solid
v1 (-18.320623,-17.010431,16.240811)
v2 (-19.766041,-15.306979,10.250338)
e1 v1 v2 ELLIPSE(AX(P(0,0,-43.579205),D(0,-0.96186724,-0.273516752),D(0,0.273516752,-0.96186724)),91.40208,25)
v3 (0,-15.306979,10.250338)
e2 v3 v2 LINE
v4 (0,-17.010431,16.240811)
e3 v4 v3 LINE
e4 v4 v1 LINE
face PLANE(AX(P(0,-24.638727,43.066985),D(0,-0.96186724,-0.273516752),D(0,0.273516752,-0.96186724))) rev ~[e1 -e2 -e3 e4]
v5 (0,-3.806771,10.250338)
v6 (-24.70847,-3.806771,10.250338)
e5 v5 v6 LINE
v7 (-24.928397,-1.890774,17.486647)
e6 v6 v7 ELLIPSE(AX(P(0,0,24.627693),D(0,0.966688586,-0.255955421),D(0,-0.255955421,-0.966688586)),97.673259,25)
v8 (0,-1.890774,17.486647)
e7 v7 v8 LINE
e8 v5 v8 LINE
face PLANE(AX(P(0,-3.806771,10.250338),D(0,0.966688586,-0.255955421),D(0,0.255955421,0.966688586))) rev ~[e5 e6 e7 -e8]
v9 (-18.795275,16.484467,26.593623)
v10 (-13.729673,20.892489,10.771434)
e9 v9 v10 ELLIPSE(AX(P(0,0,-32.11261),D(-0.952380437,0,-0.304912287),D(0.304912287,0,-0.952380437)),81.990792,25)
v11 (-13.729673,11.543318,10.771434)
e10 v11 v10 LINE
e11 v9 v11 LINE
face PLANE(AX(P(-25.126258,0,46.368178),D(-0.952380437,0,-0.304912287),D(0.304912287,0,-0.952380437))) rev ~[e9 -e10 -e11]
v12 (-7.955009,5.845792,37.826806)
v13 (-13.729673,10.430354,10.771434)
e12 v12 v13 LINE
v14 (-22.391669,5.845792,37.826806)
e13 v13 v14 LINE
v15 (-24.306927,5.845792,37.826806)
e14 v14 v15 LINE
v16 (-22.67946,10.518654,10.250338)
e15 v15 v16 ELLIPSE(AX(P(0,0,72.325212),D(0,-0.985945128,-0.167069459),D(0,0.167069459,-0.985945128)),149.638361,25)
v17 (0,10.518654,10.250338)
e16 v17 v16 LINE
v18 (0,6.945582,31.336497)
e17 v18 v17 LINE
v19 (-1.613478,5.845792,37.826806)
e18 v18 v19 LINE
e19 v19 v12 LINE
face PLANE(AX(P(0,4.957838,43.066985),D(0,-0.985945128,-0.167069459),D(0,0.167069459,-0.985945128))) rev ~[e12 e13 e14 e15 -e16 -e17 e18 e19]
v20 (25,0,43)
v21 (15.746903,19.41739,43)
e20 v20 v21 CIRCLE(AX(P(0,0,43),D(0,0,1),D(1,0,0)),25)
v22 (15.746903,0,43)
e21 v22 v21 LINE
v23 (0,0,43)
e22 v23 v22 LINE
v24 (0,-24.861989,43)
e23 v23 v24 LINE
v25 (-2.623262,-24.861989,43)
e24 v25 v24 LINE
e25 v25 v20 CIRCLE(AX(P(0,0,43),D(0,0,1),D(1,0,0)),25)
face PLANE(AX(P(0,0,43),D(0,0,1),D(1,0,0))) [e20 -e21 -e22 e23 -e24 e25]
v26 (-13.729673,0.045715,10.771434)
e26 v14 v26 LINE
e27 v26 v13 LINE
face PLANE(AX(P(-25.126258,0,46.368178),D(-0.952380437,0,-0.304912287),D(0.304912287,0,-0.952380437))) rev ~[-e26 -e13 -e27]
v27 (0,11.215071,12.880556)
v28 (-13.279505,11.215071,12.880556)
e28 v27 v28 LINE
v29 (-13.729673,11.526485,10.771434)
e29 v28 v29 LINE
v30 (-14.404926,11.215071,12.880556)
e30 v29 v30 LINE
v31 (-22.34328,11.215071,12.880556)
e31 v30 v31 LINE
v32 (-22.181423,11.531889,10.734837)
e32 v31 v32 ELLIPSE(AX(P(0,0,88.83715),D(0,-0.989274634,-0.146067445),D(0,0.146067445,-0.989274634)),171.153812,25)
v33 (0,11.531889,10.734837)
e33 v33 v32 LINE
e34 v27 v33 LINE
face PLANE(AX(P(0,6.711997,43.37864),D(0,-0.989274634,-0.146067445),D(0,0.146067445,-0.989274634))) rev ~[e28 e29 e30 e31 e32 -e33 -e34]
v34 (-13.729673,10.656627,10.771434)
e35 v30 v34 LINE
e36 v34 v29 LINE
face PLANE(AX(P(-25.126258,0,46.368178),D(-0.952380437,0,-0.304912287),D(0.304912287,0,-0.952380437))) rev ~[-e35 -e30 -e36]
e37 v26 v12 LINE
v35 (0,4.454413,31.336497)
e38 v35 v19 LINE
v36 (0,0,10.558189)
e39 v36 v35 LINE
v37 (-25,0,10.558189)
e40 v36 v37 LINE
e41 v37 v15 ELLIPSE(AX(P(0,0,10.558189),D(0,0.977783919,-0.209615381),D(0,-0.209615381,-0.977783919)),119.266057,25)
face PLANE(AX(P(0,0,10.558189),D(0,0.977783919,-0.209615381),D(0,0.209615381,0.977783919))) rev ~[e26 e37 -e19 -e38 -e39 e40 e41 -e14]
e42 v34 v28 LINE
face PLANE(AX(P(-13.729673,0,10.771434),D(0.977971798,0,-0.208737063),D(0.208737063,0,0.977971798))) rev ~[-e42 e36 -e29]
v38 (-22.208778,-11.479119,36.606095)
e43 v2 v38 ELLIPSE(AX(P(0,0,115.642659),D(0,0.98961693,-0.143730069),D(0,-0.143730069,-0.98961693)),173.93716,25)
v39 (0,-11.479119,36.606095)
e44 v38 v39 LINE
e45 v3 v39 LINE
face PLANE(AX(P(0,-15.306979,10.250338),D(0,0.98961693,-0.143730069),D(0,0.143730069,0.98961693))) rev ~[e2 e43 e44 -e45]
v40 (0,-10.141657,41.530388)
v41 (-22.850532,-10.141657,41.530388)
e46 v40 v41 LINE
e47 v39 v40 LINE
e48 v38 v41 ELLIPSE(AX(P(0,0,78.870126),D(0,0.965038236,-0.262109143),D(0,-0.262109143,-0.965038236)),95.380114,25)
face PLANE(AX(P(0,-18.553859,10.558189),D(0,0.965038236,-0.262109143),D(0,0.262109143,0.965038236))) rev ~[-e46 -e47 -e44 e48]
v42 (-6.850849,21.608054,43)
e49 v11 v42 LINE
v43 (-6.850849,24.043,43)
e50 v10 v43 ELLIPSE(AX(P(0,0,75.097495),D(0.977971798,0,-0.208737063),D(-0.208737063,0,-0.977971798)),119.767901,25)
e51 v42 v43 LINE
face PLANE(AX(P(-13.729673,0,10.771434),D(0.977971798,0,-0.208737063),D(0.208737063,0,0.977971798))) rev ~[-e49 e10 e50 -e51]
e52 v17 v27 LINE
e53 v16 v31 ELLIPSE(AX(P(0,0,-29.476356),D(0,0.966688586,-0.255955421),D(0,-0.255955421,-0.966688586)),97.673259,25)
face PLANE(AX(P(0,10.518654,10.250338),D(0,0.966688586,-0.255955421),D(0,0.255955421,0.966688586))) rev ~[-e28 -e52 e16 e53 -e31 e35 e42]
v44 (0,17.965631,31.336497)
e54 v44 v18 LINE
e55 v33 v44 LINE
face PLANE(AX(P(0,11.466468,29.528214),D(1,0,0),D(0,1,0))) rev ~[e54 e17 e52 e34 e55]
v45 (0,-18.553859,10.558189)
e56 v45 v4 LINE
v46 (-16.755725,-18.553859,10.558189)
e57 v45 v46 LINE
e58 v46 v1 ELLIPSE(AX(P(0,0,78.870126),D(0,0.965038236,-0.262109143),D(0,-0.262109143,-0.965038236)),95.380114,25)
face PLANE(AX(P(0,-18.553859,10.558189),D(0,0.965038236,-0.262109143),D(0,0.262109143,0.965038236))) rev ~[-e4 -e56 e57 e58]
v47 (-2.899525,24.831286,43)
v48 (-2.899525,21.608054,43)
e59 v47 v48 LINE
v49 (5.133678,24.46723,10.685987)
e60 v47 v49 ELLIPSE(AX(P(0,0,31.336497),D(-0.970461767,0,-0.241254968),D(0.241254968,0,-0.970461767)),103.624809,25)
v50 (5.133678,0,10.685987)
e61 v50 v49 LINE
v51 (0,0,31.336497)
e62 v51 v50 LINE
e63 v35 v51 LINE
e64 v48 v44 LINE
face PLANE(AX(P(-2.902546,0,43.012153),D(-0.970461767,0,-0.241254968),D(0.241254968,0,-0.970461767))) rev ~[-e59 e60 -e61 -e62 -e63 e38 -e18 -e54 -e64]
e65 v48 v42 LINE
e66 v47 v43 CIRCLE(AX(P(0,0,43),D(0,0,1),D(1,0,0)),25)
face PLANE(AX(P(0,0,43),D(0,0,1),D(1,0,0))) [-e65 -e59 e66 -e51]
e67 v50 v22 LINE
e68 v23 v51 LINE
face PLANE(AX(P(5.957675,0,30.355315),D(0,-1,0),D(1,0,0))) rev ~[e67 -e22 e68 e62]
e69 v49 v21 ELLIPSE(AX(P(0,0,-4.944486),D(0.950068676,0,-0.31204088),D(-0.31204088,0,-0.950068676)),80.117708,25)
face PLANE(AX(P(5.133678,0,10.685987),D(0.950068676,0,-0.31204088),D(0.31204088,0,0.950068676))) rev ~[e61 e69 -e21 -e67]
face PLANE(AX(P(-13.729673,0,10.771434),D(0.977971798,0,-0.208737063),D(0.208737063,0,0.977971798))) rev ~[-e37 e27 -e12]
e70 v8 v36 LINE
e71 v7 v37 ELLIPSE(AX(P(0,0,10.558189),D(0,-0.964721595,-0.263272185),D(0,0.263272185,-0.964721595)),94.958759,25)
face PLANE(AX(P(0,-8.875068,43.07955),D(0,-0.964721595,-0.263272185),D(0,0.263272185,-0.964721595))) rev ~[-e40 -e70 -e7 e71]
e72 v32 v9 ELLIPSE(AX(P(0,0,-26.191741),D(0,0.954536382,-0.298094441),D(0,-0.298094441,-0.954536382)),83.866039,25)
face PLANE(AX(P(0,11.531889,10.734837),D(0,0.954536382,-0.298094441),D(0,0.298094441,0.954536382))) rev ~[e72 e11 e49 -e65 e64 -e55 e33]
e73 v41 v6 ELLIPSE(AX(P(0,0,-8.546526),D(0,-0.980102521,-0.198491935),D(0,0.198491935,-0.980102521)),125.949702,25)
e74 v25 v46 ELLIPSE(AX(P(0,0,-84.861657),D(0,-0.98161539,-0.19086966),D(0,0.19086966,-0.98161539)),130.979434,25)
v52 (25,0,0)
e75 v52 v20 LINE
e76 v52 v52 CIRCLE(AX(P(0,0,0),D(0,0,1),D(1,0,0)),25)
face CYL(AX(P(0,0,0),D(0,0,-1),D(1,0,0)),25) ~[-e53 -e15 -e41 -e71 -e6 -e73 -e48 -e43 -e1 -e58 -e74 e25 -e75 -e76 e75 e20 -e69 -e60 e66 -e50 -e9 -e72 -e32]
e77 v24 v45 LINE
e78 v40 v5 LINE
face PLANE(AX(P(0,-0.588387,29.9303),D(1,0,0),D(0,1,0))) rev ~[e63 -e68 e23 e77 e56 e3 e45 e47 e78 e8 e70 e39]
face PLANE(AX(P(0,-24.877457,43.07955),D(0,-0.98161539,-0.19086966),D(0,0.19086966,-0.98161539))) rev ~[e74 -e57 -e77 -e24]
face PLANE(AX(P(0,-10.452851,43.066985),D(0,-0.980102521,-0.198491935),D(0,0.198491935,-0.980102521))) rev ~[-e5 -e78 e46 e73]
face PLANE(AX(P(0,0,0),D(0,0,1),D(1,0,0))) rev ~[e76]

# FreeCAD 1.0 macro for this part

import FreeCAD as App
import Part
import Sketcher
Q = App.Units.Quantity

doc = App.newDocument("Part")
body = doc.addObject("PartDesign::Body", "Body")

# Sketch on XY plane
sketch1 = body.newObject("Sketcher::SketchObject", "Sketch")
sketch1.AttachmentSupport = (doc.getObject("XY_Plane"), [""])
sketch1.MapMode = "FlatFace"
sketch1.addGeometry(Part.Circle(App.Vector(0, 0, 0), App.Vector(0, 0, 1), 25), False)
sketch1.addConstraint([
    Sketcher.Constraint("Coincident", 0, 3, -1, 1),
    Sketcher.Constraint("Diameter", 0, Q("50 mm")),
])
pad1 = body.newObject("PartDesign::Pad", "Pad")
pad1.Profile = sketch1
pad1.Length = 43

# Sketch on XZ plane
sketch2 = body.newObject("Sketcher::SketchObject", "Sketch001")
sketch2.AttachmentSupport = (doc.getObject("XZ_Plane"), [""])
sketch2.MapMode = "FlatFace"
sketch2.addGeometry([
    Part.LineSegment(App.Vector(-25, 46, 0), App.Vector(-14, 11, 0)),
    Part.LineSegment(App.Vector(-14, 11, 0), App.Vector(-6, 46, 0)),
    Part.LineSegment(App.Vector(-6, 46, 0), App.Vector(-25, 46, 0)),
], False)
sketch2.addConstraint([
    Sketcher.Constraint("Coincident", 0, 2, 1, 1),
    Sketcher.Constraint("Coincident", 1, 2, 2, 1),
    Sketcher.Constraint("Coincident", 2, 2, 0, 1),
    Sketcher.Constraint("Horizontal", 2),
    Sketcher.Constraint("Distance", 0, Q("37.376601 mm")),
    Sketcher.Constraint("DistanceX", 2, 2, 2, 1, Q("18.994309 mm")),
    Sketcher.Constraint("Distance", 1, Q("36.398538 mm")),
    Sketcher.Constraint("DistanceX", 1, 2, -1, 1, Q("6.131949 mm")),
    Sketcher.Constraint("DistanceY", -1, 1, 0, 2, Q("10.771434 mm")),
])
pocket1 = body.newObject("PartDesign::Pocket", "Pocket")
pocket1.Profile = sketch2
pocket1.Type = "ThroughAll"

# Sketch on YZ plane
sketch3 = body.newObject("Sketcher::SketchObject", "Sketch002")
sketch3.AttachmentSupport = (doc.getObject("YZ_Plane"), [""])
sketch3.MapMode = "FlatFace"
sketch3.addGeometry([
    Part.LineSegment(App.Vector(-19, 11, 0), App.Vector(-10, 43, 0)),  # 0
    Part.LineSegment(App.Vector(-10, 43, 0), App.Vector(-25, 43, 0)),  # 1
    Part.LineSegment(App.Vector(-25, 43, 0), App.Vector(-19, 11, 0)),  # 2
    Part.LineSegment(App.Vector(-9, 43, 0), App.Vector(0, 11, 0)),  # 3
    Part.LineSegment(App.Vector(0, 11, 0), App.Vector(7, 43, 0)),  # 4
    Part.LineSegment(App.Vector(7, 43, 0), App.Vector(-9, 43, 0)),  # 5
], False)
sketch3.addConstraint([
    Sketcher.Constraint("Coincident", 0, 2, 1, 1),
    Sketcher.Constraint("Coincident", 1, 2, 2, 1),
    Sketcher.Constraint("Coincident", 2, 2, 0, 1),
    Sketcher.Constraint("Coincident", 3, 2, 4, 1),
    Sketcher.Constraint("Coincident", 4, 2, 5, 1),
    Sketcher.Constraint("Coincident", 5, 2, 3, 1),
    Sketcher.Constraint("Horizontal", 1),
    Sketcher.Constraint("Horizontal", 5),
    Sketcher.Constraint("PointOnObject", 3, 2, -2),
    Sketcher.Constraint("Horizontal", 2, 2, 3, 2),
    Sketcher.Constraint("Horizontal", 1, 2, 4, 2),
    Sketcher.Constraint("DistanceX", 1, 2, 1, 1, Q("15.15656 mm")),
    Sketcher.Constraint("DistanceX", 1, 2, 2, 2, Q("6.323598 mm")),
    Sketcher.Constraint("Distance", 2, Q("33.130451 mm")),
    Sketcher.Constraint("DistanceX", 5, 2, 5, 1, Q("15.846933 mm")),
    Sketcher.Constraint("DistanceY", -1, 1, 0, 2, Q("43.07955 mm")),
    Sketcher.Constraint("DistanceX", 2, 2, -1, 1, Q("18.553859 mm")),
    Sketcher.Constraint("DistanceX", 5, 2, -1, 1, Q("8.875068 mm")),
])
pocket2 = body.newObject("PartDesign::Pocket", "Pocket001")
pocket2.Profile = sketch3
pocket2.Type = "ThroughAll"

# Sketch on XZ plane
sketch4 = body.newObject("Sketcher::SketchObject", "Sketch003")
sketch4.AttachmentSupport = (doc.getObject("XZ_Plane"), [""])
sketch4.MapMode = "FlatFace"
sketch4.addGeometry([
    Part.LineSegment(App.Vector(16, 43, 0), App.Vector(-3, 43, 0)),
    Part.LineSegment(App.Vector(-3, 43, 0), App.Vector(5, 11, 0)),
    Part.LineSegment(App.Vector(5, 11, 0), App.Vector(16, 43, 0)),
], False)
sketch4.addConstraint([
    Sketcher.Constraint("Coincident", 0, 2, 1, 1),
    Sketcher.Constraint("Coincident", 1, 2, 2, 1),
    Sketcher.Constraint("Coincident", 2, 2, 0, 1),
    Sketcher.Constraint("Horizontal", 0),
    Sketcher.Constraint("DistanceX", 0, 2, 0, 1, Q("18.653441 mm")),
    Sketcher.Constraint("Distance", 1, Q("33.310087 mm")),
    Sketcher.Constraint("Distance", 2, Q("34.025083 mm")),
    Sketcher.Constraint("DistanceX", 0, 2, -1, 1, Q("2.902546 mm")),
    Sketcher.Constraint("DistanceY", -1, 1, 0, 2, Q("43.012153 mm")),
])
pocket3 = body.newObject("PartDesign::Pocket", "Pocket002")
pocket3.Profile = sketch4
pocket3.Type = "ThroughAll"

# Sketch on YZ plane
sketch5 = body.newObject("Sketcher::SketchObject", "Sketch004")
sketch5.AttachmentSupport = (doc.getObject("YZ_Plane"), [""])
sketch5.MapMode = "FlatFace"
sketch5.addGeometry([
    Part.LineSegment(App.Vector(-15.31, 10.25, 0), App.Vector(-10.54, 43.07, 0)),  # 0
    Part.LineSegment(App.Vector(-10.54, 43.07, 0), App.Vector(-24.64, 43.07, 0)),  # 1
    Part.LineSegment(App.Vector(-24.64, 43.07, 0), App.Vector(-15.31, 10.25, 0)),  # 2
    Part.LineSegment(App.Vector(-10.45, 43.07, 0), App.Vector(-10.5, 43.32, 0)),  # 3
    Part.LineSegment(App.Vector(-10.5, 43.32, 0), App.Vector(-10.54, 43.07, 0)),  # 4
    Part.LineSegment(App.Vector(-10.54, 43.07, 0), App.Vector(-10.45, 43.07, 0)),  # 5
    Part.LineSegment(App.Vector(-3.81, 10.25, 0), App.Vector(4.88, 43.07, 0)),  # 6
    Part.LineSegment(App.Vector(4.88, 43.07, 0), App.Vector(-10.45, 43.07, 0)),  # 7
    Part.LineSegment(App.Vector(-10.45, 43.07, 0), App.Vector(-3.81, 10.25, 0)),  # 8
    Part.LineSegment(App.Vector(4.96, 43.07, 0), App.Vector(4.93, 43.24, 0)),  # 9
    Part.LineSegment(App.Vector(4.93, 43.24, 0), App.Vector(4.88, 43.07, 0)),  # 10
    Part.LineSegment(App.Vector(4.88, 43.07, 0), App.Vector(4.96, 43.07, 0)),  # 11
    Part.LineSegment(App.Vector(10.52, 10.25, 0), App.Vector(19.21, 43.07, 0)),  # 12
    Part.LineSegment(App.Vector(19.21, 43.07, 0), App.Vector(4.96, 43.07, 0)),  # 13
    Part.LineSegment(App.Vector(4.96, 43.07, 0), App.Vector(10.52, 10.25, 0)),  # 14
], False)
sketch5.addConstraint([
    Sketcher.Constraint("Coincident", 0, 2, 1, 1),
    Sketcher.Constraint("Coincident", 1, 2, 2, 1),
    Sketcher.Constraint("Coincident", 2, 2, 0, 1),
    Sketcher.Constraint("Coincident", 3, 2, 4, 1),
    Sketcher.Constraint("Coincident", 4, 2, 5, 1),
    Sketcher.Constraint("Coincident", 5, 2, 3, 1),
    Sketcher.Constraint("Coincident", 6, 2, 7, 1),
    Sketcher.Constraint("Coincident", 7, 2, 8, 1),
    Sketcher.Constraint("Coincident", 8, 2, 6, 1),
    Sketcher.Constraint("Coincident", 9, 2, 10, 1),
    Sketcher.Constraint("Coincident", 10, 2, 11, 1),
    Sketcher.Constraint("Coincident", 11, 2, 9, 1),
    Sketcher.Constraint("Coincident", 12, 2, 13, 1),
    Sketcher.Constraint("Coincident", 13, 2, 14, 1),
    Sketcher.Constraint("Coincident", 14, 2, 12, 1),
    Sketcher.Constraint("Horizontal", 1),
    Sketcher.Constraint("Horizontal", 5),
    Sketcher.Constraint("Horizontal", 7),
    Sketcher.Constraint("Horizontal", 11),
    Sketcher.Constraint("Horizontal", 13),
    Sketcher.Constraint("Coincident", 4, 2, 0, 2),
    Sketcher.Constraint("Coincident", 7, 2, 5, 2),
    Sketcher.Constraint("Coincident", 10, 2, 6, 2),
    Sketcher.Constraint("Coincident", 13, 2, 11, 2),
    Sketcher.Constraint("Parallel", 0, 4),
    Sketcher.Constraint("Parallel", 3, 8),
    Sketcher.Constraint("Parallel", 6, 10),
    Sketcher.Constraint("Parallel", 10, 12),
    Sketcher.Constraint("Horizontal", 2, 2, 8, 2),
    Sketcher.Constraint("Horizontal", 8, 2, 14, 2),
    Sketcher.Constraint("DistanceX", 5, 1, 5, 2, Q("0.087901 mm")),
    Sketcher.Constraint("DistanceX", 1, 2, 6, 2, Q("29.520999 mm")),
    Sketcher.Constraint("DistanceX", 13, 2, 13, 1, Q("14.249859 mm")),
    Sketcher.Constraint("DistanceX", 5, 2, 9, 2, Q("15.3812 mm")),
    Sketcher.Constraint("Distance", 0, Q("33.16096 mm")),
    Sketcher.Constraint("Distance", 8, Q("33.482872 mm")),
    Sketcher.Constraint("Distance", 10, Q("0.180021 mm")),
    Sketcher.Constraint("DistanceX", 11, 1, 11, 2, Q("0.075566 mm")),
    Sketcher.Constraint("DistanceX", 2, 2, -1, 1, Q("15.306979 mm")),
    Sketcher.Constraint("DistanceX", 3, 2, -1, 1, Q("10.504041 mm")),
    Sketcher.Constraint("DistanceY", -1, 1, 9, 2, Q("43.241009 mm")),
])
pocket4 = body.newObject("PartDesign::Pocket", "Pocket003")
pocket4.Profile = sketch5
pocket4.Type = "ThroughAll"

# Sketch on YZ plane
sketch6 = body.newObject("Sketcher::SketchObject", "Sketch005")
sketch6.AttachmentSupport = (doc.getObject("YZ_Plane"), [""])
sketch6.MapMode = "FlatFace"
sketch6.addGeometry([
    Part.LineSegment(App.Vector(12, 11, 0), App.Vector(22, 43, 0)),
    Part.LineSegment(App.Vector(22, 43, 0), App.Vector(7, 43, 0)),
    Part.LineSegment(App.Vector(7, 43, 0), App.Vector(12, 11, 0)),
], False)
sketch6.addConstraint([
    Sketcher.Constraint("Coincident", 0, 2, 1, 1),
    Sketcher.Constraint("Coincident", 1, 2, 2, 1),
    Sketcher.Constraint("Coincident", 2, 2, 0, 1),
    Sketcher.Constraint("Horizontal", 1),
    Sketcher.Constraint("DistanceX", -1, 1, 0, 2, Q("21.7263 mm")),
    Sketcher.Constraint("DistanceX", 1, 2, 1, 1, Q("15.014303 mm")),
    Sketcher.Constraint("DistanceY", -1, 1, 0, 2, Q("43.37864 mm")),
    Sketcher.Constraint("DistanceX", -1, 1, 2, 2, Q("11.531889 mm")),
    Sketcher.Constraint("Distance", 0, Q("34.198595 mm")),
])
pocket5 = body.newObject("PartDesign::Pocket", "Pocket004")
pocket5.Profile = sketch6
pocket5.Type = "ThroughAll"

doc.recompute()
